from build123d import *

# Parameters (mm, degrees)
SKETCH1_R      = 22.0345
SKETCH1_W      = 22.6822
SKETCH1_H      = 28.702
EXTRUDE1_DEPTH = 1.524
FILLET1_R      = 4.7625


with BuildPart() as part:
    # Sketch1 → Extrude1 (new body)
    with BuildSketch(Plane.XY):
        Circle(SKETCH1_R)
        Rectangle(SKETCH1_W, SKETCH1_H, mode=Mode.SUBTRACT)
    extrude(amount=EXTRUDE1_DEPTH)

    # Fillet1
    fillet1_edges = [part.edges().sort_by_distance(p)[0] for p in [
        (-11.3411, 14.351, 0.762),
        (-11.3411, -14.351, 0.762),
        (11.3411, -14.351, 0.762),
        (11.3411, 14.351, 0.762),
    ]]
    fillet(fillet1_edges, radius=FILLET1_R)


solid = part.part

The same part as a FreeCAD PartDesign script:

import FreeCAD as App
import Part
import Sketcher
from FreeCAD import Vector
Q = App.Units.Quantity


def edges_at(feature, points):
    """Names of the edges that pass closest to the given points."""
    edges = feature.Shape.Edges
    near = lambda p: min(range(len(edges)), key=lambda i: edges[i].distToShape(Part.Vertex(*p))[0])
    return sorted({f"Edge{near(p) + 1}" for p in points})

doc = App.newDocument("Part")
params = doc.addObject("Spreadsheet::Sheet", "Params")
for row, (alias, value) in enumerate([
    ("sketch1_diameter", "1.735 in"),
    ("sketch1_height", "1.13 in"),
    ("sketch1_width", "0.893 in"),
    ("pad1_length", "0.06 in"),
    ("fillet_radius", "0.1875 in"),
], start=1):
    params.set(f"A{row}", alias)
    params.set(f"B{row}", "=" + value)
    params.setAlias(f"B{row}", alias)

body = doc.addObject("PartDesign::Body", "Body")

# Sketch on XY plane
sketch1 = body.newObject("Sketcher::SketchObject", "Sketch")
sketch1.AttachmentSupport = (doc.getObject("XY_Plane"), [""])
sketch1.MapMode = "FlatFace"
sketch1.addGeometry([
    Part.Circle(Vector(0, 0, 0), Vector(0, 0, 1), 22),  # 0
    Part.LineSegment(Vector(11, -14, 0), Vector(-11, -14, 0)),  # 1
    Part.LineSegment(Vector(-11, -14, 0), Vector(-11, 14, 0)),  # 2
    Part.LineSegment(Vector(-11, 14, 0), Vector(11, 14, 0)),  # 3
    Part.LineSegment(Vector(11, 14, 0), Vector(11, -14, 0)),  # 4
], False)
sketch1.addConstraint([
    Sketcher.Constraint("Coincident", 1, 2, 2, 1),
    Sketcher.Constraint("Coincident", 2, 2, 3, 1),
    Sketcher.Constraint("Coincident", 3, 2, 4, 1),
    Sketcher.Constraint("Coincident", 4, 2, 1, 1),
    Sketcher.Constraint("Horizontal", 1),
    Sketcher.Constraint("Vertical", 2),
    Sketcher.Constraint("Horizontal", 3),
    Sketcher.Constraint("Vertical", 4),
    Sketcher.Constraint("Coincident", 0, 3, -1, 1),
    Sketcher.Constraint("Symmetric", 1, 2, 3, 2, -1, 1),
    Sketcher.Constraint("Diameter", 0, Q("1.735 in")),
    Sketcher.Constraint("DistanceY", 2, 1, 2, 2, Q("1.13 in")),
    Sketcher.Constraint("DistanceX", 1, 2, 1, 1, Q("0.893 in")),
])
sketch1.setExpression("Constraints[10]", "Params.sketch1_diameter")
sketch1.setExpression("Constraints[11]", "Params.sketch1_height")
sketch1.setExpression("Constraints[12]", "Params.sketch1_width")
pad1 = body.newObject("PartDesign::Pad", "Pad")
pad1.Profile = sketch1
pad1.setExpression("Length", "Params.pad1_length")
doc.recompute()

fillet = body.newObject("PartDesign::Fillet", "Fillet")
fillet.Base = (pad1, edges_at(pad1, [
    (-11.341, 14.351, 0.762),
    (-11.341, -14.351, 0.762),
    (11.341, -14.351, 0.762),
    (11.341, 14.351, 0.762),
]))
fillet.setExpression("Radius", "Params.fillet_radius")

doc.recompute()
